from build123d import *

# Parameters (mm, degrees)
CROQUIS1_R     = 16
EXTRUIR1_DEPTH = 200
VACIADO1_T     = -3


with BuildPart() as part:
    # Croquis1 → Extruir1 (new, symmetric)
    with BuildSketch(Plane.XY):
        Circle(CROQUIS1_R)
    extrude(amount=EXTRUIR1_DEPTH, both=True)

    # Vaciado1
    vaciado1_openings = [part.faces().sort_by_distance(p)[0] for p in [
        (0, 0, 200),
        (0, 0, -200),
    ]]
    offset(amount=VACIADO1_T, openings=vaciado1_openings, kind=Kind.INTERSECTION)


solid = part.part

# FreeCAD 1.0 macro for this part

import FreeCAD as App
import Part
import Sketcher


def faces_at(feature, points):
    """Names of the faces that lie closest to the given points."""
    faces = feature.Shape.Faces
    near = lambda p: min(range(len(faces)), key=lambda i: faces[i].distToShape(Part.Vertex(*p))[0])
    return sorted({f"Face{near(p) + 1}" for p in points})

doc = App.newDocument("Part")
body = doc.addObject("PartDesign::Body", "Body")

# Sketch on XY plane
sketch1 = doc.addObject("Sketcher::SketchObject", "Sketch")
body.addObject(sketch1)
sketch1.AttachmentSupport = (doc.XY_Plane, [""])
sketch1.MapMode = "FlatFace"
sketch1.addGeometry(Part.Circle(App.Vector(0, 0, 0), App.Vector(0, 0, 1), 16), False)
sketch1.addConstraint([
    Sketcher.Constraint("Coincident", 0, 3, -1, 1),
    Sketcher.Constraint("Diameter", 0, 32.0),
])
pad1 = doc.addObject("PartDesign::Pad", "Pad")
body.addObject(pad1)
pad1.Profile = sketch1
pad1.Length = 400
pad1.Midplane = True
doc.recompute()

thickness = doc.addObject("PartDesign::Thickness", "Thickness")
body.addObject(thickness)
thickness.Base = (pad1, faces_at(pad1, [(0, 0, 200), (0, 0, -200)]))
thickness.Value = 3
thickness.Reversed = True
thickness.Join = "Intersection"

doc.recompute()
